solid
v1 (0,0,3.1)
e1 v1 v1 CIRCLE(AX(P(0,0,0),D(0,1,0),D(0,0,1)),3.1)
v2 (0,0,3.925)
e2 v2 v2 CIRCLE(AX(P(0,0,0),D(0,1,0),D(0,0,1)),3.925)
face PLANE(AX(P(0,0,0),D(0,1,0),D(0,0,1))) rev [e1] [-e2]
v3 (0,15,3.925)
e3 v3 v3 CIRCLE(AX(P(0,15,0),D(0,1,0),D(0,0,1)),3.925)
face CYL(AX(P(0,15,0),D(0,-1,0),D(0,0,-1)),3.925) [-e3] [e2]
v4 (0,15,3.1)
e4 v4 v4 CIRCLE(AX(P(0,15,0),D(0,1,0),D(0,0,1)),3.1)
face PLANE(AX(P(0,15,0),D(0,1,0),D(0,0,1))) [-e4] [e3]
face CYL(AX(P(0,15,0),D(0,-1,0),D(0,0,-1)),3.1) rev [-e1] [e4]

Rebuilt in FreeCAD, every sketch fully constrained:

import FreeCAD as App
import Part
import Sketcher

doc = App.newDocument("Part")
body = doc.addObject("PartDesign::Body", "Body")

# Sketch on XZ plane
sketch1 = doc.addObject("Sketcher::SketchObject", "Sketch")
body.addObject(sketch1)
sketch1.AttachmentSupport = (doc.XZ_Plane, [""])
sketch1.MapMode = "FlatFace"
sketch1.addGeometry([
    Part.Circle(App.Vector(0, 0, 0), App.Vector(0, 0, 1), 3.9),
    Part.Circle(App.Vector(0, 0, 0), App.Vector(0, 0, 1), 3.1),
], False)
sketch1.addConstraint([
    Sketcher.Constraint("Coincident", 0, 3, -1, 1),
    Sketcher.Constraint("Coincident", 1, 3, -1, 1),
    Sketcher.Constraint("Diameter", 1, 6.2),
    Sketcher.Constraint("Diameter", 0, 7.85),
])
pad1 = doc.addObject("PartDesign::Pad", "Pad")
body.addObject(pad1)
pad1.Profile = sketch1
pad1.Length = 15
pad1.Reversed = True

doc.recompute()
